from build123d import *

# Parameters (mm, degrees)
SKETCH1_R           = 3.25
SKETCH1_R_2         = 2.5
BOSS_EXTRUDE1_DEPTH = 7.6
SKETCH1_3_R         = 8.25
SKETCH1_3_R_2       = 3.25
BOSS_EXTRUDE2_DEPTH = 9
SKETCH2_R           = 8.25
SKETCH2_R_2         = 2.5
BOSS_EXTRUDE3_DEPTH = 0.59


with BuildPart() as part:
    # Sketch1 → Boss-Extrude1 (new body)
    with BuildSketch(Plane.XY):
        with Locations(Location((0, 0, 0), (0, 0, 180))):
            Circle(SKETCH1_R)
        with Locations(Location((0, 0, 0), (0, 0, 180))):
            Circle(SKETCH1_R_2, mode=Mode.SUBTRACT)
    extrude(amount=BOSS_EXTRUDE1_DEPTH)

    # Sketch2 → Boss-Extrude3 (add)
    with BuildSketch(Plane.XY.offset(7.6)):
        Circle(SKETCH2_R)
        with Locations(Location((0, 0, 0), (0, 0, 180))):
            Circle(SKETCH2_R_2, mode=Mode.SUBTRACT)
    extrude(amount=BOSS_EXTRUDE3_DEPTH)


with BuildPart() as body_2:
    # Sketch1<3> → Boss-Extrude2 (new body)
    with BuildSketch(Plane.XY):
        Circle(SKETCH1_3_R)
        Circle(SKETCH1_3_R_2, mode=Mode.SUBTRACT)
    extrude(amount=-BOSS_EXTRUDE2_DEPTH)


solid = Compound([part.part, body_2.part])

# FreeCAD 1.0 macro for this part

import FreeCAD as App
import Part
import Sketcher
from FreeCAD import Vector
Q = App.Units.Quantity

doc = App.newDocument("Part")
params = doc.addObject("Spreadsheet::Sheet", "Params")
for row, (alias, value) in enumerate([
    ("sketch1_diameter", "5 mm"),
    ("sketch1_diameter2", "6.5 mm"),
    ("pad1_length", "7.6 mm"),
    ("sketch2_diameter", "5 mm"),
    ("sketch2_diameter2", "16.5 mm"),
    ("pad2_length", "0.59 mm"),
    ("sketch3_diameter", "16.5 mm"),
    ("sketch3_diameter2", "6.5 mm"),
    ("pad3_length", "9 mm"),
], start=1):
    params.set(f"A{row}", alias)
    params.set(f"B{row}", "=" + value)
    params.setAlias(f"B{row}", alias)

body = doc.addObject("PartDesign::Body", "Body")

# Sketch on XY plane
sketch1 = body.newObject("Sketcher::SketchObject", "Sketch")
sketch1.AttachmentSupport = (doc.getObject("XY_Plane"), [""])
sketch1.MapMode = "FlatFace"
sketch1.addGeometry(Part.Circle(Vector(0, 0, 0), Vector(0, 0, 1), 3.2), False)
sketch1.addGeometry(Part.Circle(Vector(0, 0, 0), Vector(0, 0, 1), 2.5), False)
sketch1.addConstraint(Sketcher.Constraint("Coincident", 0, 3, -1, 1))
sketch1.addConstraint(Sketcher.Constraint("Coincident", 1, 3, -1, 1))
sketch1.addConstraint(Sketcher.Constraint("Diameter", 1, Q("5 mm")))
sketch1.addConstraint(Sketcher.Constraint("Diameter", 0, Q("6.5 mm")))
sketch1.setExpression("Constraints[2]", "Params.sketch1_diameter")
sketch1.setExpression("Constraints[3]", "Params.sketch1_diameter2")
pad1 = body.newObject("PartDesign::Pad", "Pad")
pad1.Profile = sketch1
pad1.setExpression("Length", "Params.pad1_length")

# Sketch on XY plane
sketch2 = body.newObject("Sketcher::SketchObject", "Sketch001")
sketch2.AttachmentSupport = (doc.getObject("XY_Plane"), [""])
sketch2.MapMode = "FlatFace"
sketch2.AttachmentOffset = App.Placement(Vector(0, 0, 7.6), App.Rotation())
sketch2.addGeometry(Part.Circle(Vector(0, 0, 0), Vector(0, 0, 1), 8.2), False)
sketch2.addGeometry(Part.Circle(Vector(0, 0, 0), Vector(0, 0, 1), 2.5), False)
sketch2.addConstraint(Sketcher.Constraint("Coincident", 0, 3, -1, 1))
sketch2.addConstraint(Sketcher.Constraint("Coincident", 1, 3, -1, 1))
sketch2.addConstraint(Sketcher.Constraint("Diameter", 1, Q("5 mm")))
sketch2.addConstraint(Sketcher.Constraint("Diameter", 0, Q("16.5 mm")))
sketch2.setExpression("Constraints[2]", "Params.sketch2_diameter")
sketch2.setExpression("Constraints[3]", "Params.sketch2_diameter2")
pad2 = body.newObject("PartDesign::Pad", "Pad001")
pad2.Profile = sketch2
pad2.setExpression("Length", "Params.pad2_length")
body2 = doc.addObject("PartDesign::Body", "Body001")

# Sketch on XY plane
sketch3 = body2.newObject("Sketcher::SketchObject", "Sketch002")
sketch3.AttachmentSupport = (doc.getObject("XY_Plane001"), [""])
sketch3.MapMode = "FlatFace"
sketch3.addGeometry(Part.Circle(Vector(0, 0, 0), Vector(0, 0, 1), 8.2), False)
sketch3.addGeometry(Part.Circle(Vector(0, 0, 0), Vector(0, 0, 1), 3.2), False)
sketch3.addConstraint(Sketcher.Constraint("Coincident", 0, 3, -1, 1))
sketch3.addConstraint(Sketcher.Constraint("Coincident", 1, 3, -1, 1))
sketch3.addConstraint(Sketcher.Constraint("Diameter", 0, Q("16.5 mm")))
sketch3.addConstraint(Sketcher.Constraint("Diameter", 1, Q("6.5 mm")))
sketch3.setExpression("Constraints[2]", "Params.sketch3_diameter")
sketch3.setExpression("Constraints[3]", "Params.sketch3_diameter2")
pad3 = body2.newObject("PartDesign::Pad", "Pad002")
pad3.Profile = sketch3
pad3.setExpression("Length", "Params.pad3_length")
pad3.Reversed = True

doc.recompute()
